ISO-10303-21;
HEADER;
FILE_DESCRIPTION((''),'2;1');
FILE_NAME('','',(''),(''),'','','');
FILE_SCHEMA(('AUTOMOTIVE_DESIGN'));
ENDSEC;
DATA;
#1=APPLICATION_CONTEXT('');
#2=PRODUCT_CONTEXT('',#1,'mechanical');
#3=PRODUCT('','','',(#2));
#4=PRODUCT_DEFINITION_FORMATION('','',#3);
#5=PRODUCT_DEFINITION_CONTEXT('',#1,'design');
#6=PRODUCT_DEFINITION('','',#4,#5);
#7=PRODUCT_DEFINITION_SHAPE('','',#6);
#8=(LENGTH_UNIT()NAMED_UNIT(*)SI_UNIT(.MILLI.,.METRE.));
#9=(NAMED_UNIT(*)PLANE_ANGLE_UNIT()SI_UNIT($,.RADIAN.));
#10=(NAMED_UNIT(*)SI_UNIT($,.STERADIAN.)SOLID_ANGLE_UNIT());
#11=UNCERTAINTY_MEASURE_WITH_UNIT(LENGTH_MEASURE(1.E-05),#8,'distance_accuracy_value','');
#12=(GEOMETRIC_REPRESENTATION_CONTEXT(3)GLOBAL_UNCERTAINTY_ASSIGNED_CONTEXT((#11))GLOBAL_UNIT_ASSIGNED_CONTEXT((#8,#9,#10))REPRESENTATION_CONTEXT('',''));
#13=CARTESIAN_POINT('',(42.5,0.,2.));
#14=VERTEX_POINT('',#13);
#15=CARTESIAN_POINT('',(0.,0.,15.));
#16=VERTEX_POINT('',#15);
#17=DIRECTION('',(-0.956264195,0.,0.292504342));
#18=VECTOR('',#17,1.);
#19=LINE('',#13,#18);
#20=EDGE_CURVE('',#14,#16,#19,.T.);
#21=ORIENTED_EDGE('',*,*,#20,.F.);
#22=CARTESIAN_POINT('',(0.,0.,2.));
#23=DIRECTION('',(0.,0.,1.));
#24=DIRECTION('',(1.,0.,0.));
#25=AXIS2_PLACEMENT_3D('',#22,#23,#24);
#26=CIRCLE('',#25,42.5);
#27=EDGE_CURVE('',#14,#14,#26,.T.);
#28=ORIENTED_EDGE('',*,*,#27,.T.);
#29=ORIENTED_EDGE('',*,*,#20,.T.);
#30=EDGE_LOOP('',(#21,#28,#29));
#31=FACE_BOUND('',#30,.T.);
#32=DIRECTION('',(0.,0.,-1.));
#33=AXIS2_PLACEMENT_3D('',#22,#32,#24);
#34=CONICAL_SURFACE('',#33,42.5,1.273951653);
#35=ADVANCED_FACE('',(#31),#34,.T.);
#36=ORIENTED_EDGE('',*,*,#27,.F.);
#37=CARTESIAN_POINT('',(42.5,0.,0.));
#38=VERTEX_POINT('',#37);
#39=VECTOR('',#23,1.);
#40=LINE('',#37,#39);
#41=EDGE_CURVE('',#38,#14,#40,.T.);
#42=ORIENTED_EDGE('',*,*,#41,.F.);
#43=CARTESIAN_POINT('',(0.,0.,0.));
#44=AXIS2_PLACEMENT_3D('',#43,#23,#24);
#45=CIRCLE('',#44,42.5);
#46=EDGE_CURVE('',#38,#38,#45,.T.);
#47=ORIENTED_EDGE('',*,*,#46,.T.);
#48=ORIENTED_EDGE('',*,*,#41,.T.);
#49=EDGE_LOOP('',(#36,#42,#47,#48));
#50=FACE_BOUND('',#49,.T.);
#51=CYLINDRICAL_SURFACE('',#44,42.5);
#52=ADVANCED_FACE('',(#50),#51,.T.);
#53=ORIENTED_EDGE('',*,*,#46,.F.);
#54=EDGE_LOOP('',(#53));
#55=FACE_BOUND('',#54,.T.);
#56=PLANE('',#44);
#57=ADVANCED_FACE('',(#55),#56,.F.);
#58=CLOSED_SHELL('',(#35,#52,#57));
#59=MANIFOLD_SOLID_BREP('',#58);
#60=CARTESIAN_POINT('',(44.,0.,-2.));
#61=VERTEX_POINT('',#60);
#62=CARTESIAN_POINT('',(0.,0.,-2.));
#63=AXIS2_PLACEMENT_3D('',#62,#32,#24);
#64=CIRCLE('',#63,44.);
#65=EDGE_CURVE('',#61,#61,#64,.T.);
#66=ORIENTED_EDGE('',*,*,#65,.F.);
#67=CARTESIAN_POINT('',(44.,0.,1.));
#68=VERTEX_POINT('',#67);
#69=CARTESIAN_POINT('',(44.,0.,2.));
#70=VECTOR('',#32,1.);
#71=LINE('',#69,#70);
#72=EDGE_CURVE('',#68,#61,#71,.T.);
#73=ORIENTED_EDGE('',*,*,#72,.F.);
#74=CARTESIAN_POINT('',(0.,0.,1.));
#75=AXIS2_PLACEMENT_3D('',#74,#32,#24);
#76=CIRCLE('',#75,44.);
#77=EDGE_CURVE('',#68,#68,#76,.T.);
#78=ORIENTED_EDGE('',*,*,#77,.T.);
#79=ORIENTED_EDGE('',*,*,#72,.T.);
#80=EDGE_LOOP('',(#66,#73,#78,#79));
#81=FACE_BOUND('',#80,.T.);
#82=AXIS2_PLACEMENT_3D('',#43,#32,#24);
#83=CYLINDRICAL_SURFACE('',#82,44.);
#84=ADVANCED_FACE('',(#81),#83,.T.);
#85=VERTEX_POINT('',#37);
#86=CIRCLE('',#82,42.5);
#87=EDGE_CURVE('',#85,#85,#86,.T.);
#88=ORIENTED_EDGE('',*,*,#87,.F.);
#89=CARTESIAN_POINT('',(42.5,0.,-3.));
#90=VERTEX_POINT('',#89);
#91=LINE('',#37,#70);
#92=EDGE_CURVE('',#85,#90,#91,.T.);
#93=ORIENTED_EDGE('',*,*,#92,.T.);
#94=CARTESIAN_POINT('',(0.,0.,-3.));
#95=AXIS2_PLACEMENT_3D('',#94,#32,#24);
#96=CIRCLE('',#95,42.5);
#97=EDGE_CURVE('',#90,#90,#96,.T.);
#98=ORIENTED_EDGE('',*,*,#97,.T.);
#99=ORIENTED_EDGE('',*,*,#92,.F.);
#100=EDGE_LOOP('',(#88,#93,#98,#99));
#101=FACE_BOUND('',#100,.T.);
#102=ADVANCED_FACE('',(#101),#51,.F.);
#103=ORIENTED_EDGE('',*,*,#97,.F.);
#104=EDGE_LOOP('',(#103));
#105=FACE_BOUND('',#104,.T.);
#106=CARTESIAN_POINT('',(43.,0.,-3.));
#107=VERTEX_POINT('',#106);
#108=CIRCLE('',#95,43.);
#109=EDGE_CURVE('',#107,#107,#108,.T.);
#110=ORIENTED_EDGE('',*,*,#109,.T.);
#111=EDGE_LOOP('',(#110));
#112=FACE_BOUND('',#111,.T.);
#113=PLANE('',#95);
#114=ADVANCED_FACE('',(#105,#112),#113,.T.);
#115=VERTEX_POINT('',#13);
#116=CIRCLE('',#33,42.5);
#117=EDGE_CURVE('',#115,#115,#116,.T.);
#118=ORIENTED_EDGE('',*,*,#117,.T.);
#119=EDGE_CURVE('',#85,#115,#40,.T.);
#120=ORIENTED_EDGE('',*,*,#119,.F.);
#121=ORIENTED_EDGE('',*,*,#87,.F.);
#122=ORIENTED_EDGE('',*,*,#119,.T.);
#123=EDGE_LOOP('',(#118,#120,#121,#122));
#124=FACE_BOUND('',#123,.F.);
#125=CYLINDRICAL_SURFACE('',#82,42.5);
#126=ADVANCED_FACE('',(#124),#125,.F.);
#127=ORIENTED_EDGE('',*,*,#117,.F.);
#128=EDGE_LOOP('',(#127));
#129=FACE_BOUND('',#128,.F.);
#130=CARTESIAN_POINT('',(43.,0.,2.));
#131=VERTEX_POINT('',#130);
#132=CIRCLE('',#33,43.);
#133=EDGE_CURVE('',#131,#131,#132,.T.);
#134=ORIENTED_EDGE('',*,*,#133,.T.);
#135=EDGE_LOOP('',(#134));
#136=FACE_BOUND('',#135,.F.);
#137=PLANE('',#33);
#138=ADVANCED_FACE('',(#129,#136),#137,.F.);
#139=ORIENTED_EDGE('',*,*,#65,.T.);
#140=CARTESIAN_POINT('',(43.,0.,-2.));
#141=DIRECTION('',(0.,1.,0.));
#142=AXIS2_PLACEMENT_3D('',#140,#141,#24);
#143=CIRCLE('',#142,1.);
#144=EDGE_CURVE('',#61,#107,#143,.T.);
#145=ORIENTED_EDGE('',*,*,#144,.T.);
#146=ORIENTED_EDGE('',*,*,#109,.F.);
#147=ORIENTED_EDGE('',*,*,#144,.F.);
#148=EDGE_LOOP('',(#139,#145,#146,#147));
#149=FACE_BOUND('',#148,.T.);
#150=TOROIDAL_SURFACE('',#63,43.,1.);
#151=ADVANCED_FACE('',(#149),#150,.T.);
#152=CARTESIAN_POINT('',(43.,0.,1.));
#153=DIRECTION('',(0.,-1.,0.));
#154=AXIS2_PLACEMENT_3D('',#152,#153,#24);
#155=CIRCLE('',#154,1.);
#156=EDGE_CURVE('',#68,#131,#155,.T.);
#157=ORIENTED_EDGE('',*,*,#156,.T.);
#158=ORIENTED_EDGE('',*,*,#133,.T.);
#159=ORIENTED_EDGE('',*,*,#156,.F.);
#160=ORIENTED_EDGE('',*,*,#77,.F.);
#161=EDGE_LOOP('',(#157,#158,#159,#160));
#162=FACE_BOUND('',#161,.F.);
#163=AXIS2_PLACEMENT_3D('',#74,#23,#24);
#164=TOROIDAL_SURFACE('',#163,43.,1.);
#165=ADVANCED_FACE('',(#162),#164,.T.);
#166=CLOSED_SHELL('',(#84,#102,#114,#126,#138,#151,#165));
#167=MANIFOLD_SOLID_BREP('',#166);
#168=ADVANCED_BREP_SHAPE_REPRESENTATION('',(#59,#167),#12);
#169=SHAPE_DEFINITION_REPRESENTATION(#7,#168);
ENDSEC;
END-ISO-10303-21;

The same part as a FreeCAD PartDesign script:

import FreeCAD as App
import Part
import Sketcher

V = App.Vector


def edges_at(feature, points):
    """Names of the edges that pass closest to the given points."""
    edges = feature.Shape.Edges
    near = lambda p: min(range(len(edges)), key=lambda i: edges[i].distToShape(Part.Vertex(*p))[0])
    return sorted({f"Edge{near(p) + 1}" for p in points})


def add_polygon(sketch, points):
    """Adds a closed chain of lines whose ends are joined by coincident constraints."""
    first, n = sketch.GeometryCount, len(points)
    for a, b in zip(points, points[1:] + points[:1]):
        sketch.addGeometry(Part.LineSegment(App.Vector(*a, 0), App.Vector(*b, 0)), False)
    for i in range(n):
        sketch.addConstraint(Sketcher.Constraint("Coincident", first + i, 2, first + (i + 1) % n, 1))

doc = App.newDocument("Part")
body = doc.addObject("PartDesign::Body", "Body")

# Sketch on XZ plane
sketch1 = body.newObject("Sketcher::SketchObject", "Sketch")
sketch1.AttachmentSupport = (doc.getObject("XZ_Plane"), [""])
sketch1.MapMode = "FlatFace"
add_polygon(sketch1, [(0, 15), (0, 0), (42.5, 0), (42.5, 2)])  # lines 0-3
sketch1.addConstraint([
    Sketcher.Constraint("Vertical", 0),
    Sketcher.Constraint("Horizontal", 1),
    Sketcher.Constraint("Vertical", 2),
    Sketcher.Constraint("Coincident", 0, 2, -1, 1),
    Sketcher.Constraint("DistanceY", 0, 2, 0, 1, 15.0),
    Sketcher.Constraint("DistanceY", 2, 1, 2, 2, 2.0),
    Sketcher.Constraint("DistanceX", 1, 1, 1, 2, 42.5),
])
revolution = body.newObject("PartDesign::Revolution", "Revolution")
revolution.Profile = sketch1
revolution.ReferenceAxis = (sketch1, ["V_Axis"])
revolution.Angle = 360
body2 = doc.addObject("PartDesign::Body", "Body001")

# Sketch on XY plane
sketch2 = body2.newObject("Sketcher::SketchObject", "Sketch001")
sketch2.AttachmentSupport = (doc.getObject("XY_Plane001"), [""])
sketch2.MapMode = "FlatFace"
sketch2.addGeometry([
    Part.Circle(V(0, 0, 0), V(0, 0, 1), 44),
    Part.Circle(V(0, 0, 0), V(0, 0, 1), 42),
], False)
sketch2.addConstraint([
    Sketcher.Constraint("Coincident", 0, 3, -1, 1),
    Sketcher.Constraint("Coincident", 1, 3, -1, 1),
    Sketcher.Constraint("Diameter", 0, 88.0),
    Sketcher.Constraint("Diameter", 1, 85.0),
])
pad1 = body2.newObject("PartDesign::Pad", "Pad")
pad1.Profile = sketch2
pad1.Type = "TwoLengths"
pad1.Length = 3
pad1.Length2 = 2
pad1.Reversed = True
doc.recompute()

fillet = body2.newObject("PartDesign::Fillet", "Fillet")
fillet.Base = (pad1, edges_at(pad1, [(-44, 0, -3), (-44, 0, 2)]))
fillet.Radius = 1

doc.recompute()
